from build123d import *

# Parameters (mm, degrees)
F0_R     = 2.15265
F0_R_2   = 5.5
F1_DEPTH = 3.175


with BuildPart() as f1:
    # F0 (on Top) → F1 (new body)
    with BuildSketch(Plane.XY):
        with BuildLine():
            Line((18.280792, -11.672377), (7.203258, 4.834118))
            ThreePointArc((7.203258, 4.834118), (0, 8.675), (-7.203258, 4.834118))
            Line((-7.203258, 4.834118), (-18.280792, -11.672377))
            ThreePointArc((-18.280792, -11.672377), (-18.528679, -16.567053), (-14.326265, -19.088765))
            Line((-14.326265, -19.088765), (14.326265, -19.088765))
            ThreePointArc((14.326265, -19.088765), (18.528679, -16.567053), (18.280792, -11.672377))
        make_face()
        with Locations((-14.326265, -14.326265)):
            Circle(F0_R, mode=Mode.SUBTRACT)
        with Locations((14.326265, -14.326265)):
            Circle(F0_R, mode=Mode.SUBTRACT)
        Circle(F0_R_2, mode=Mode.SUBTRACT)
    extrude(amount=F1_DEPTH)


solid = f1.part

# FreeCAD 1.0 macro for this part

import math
import FreeCAD as App
import Part
import Sketcher
from FreeCAD import Vector
Q = App.Units.Quantity

doc = App.newDocument("Part")
body = doc.addObject("PartDesign::Body", "Body")

# Sketch on XY plane
sketch1 = body.newObject("Sketcher::SketchObject", "Sketch")
sketch1.AttachmentSupport = (doc.getObject("XY_Plane"), [""])
sketch1.MapMode = "FlatFace"
sketch1.addGeometry(Part.LineSegment(Vector(18.280792, -11.672377, 0), Vector(7.203258, 4.834118, 0)), False)
sketch1.addGeometry(Part.ArcOfCircle(Part.Circle(Vector(0, 0, 0), Vector(0, 0, 1), 8.675), math.radians(33.865624), math.radians(146.134376)), False)
sketch1.addGeometry(Part.LineSegment(Vector(-7.203258, 4.834118, 0), Vector(-18.280792, -11.672377, 0)), False)
sketch1.addGeometry(Part.ArcOfCircle(Part.Circle(Vector(-14.326266, -14.326266, 0), Vector(0, 0, 1), 4.762499), math.radians(146.134371), math.radians(270.000018)), False)
sketch1.addGeometry(Part.LineSegment(Vector(-14.326265, -19.088765, 0), Vector(14.326265, -19.088765, 0)), False)
sketch1.addGeometry(Part.ArcOfCircle(Part.Circle(Vector(14.326266, -14.326266, 0), Vector(0, 0, 1), 4.762499), math.radians(-90.000018), math.radians(33.865629)), False)
sketch1.addGeometry(Part.Circle(Vector(-14.326265, -14.326265, 0), Vector(0, 0, 1), 2.15265), False)
sketch1.addGeometry(Part.Circle(Vector(14.326265, -14.326265, 0), Vector(0, 0, 1), 2.15265), False)
sketch1.addGeometry(Part.Circle(Vector(0, 0, 0), Vector(0, 0, 1), 5.5), False)
sketch1.addConstraint(Sketcher.Constraint("Tangent", 0, 2, 1, 1))
sketch1.addConstraint(Sketcher.Constraint("Tangent", 1, 2, 2, 1))
sketch1.addConstraint(Sketcher.Constraint("Tangent", 2, 2, 3, 1))
sketch1.addConstraint(Sketcher.Constraint("Tangent", 3, 2, 4, 1))
sketch1.addConstraint(Sketcher.Constraint("Tangent", 4, 2, 5, 1))
sketch1.addConstraint(Sketcher.Constraint("Tangent", 5, 2, 0, 1))
sketch1.addConstraint(Sketcher.Constraint("Horizontal", 4))
sketch1.addConstraint(Sketcher.Constraint("Coincident", 1, 3, -1, 1))
sketch1.addConstraint(Sketcher.Constraint("Coincident", 8, 3, -1, 1))
sketch1.addConstraint(Sketcher.Constraint("Coincident", 6, 3, 3, 3))
sketch1.addConstraint(Sketcher.Constraint("Coincident", 7, 3, 5, 3))
sketch1.addConstraint(Sketcher.Constraint("Equal", 3, 5))
sketch1.addConstraint(Sketcher.Constraint("Equal", 6, 7))
sketch1.addConstraint(Sketcher.Constraint("Horizontal", 0, 2, 1, 2))
sketch1.addConstraint(Sketcher.Constraint("Radius", 3, Q("0.1875 in")))
sketch1.addConstraint(Sketcher.Constraint("Diameter", 6, Q("0.1695 in")))
sketch1.addConstraint(Sketcher.Constraint("Diameter", 8, 11.0))
sketch1.addConstraint(Sketcher.Constraint("Radius", 1, 8.675))
sketch1.addConstraint(Sketcher.Constraint("DistanceX", 4, 1, 4, 2, 28.65253))
sketch1.addConstraint(Sketcher.Constraint("DistanceX", -1, 1, 5, 2, 18.280792))
pad1 = body.newObject("PartDesign::Pad", "Pad")
pad1.Profile = sketch1
pad1.Length = Q("0.125 in")

doc.recompute()
